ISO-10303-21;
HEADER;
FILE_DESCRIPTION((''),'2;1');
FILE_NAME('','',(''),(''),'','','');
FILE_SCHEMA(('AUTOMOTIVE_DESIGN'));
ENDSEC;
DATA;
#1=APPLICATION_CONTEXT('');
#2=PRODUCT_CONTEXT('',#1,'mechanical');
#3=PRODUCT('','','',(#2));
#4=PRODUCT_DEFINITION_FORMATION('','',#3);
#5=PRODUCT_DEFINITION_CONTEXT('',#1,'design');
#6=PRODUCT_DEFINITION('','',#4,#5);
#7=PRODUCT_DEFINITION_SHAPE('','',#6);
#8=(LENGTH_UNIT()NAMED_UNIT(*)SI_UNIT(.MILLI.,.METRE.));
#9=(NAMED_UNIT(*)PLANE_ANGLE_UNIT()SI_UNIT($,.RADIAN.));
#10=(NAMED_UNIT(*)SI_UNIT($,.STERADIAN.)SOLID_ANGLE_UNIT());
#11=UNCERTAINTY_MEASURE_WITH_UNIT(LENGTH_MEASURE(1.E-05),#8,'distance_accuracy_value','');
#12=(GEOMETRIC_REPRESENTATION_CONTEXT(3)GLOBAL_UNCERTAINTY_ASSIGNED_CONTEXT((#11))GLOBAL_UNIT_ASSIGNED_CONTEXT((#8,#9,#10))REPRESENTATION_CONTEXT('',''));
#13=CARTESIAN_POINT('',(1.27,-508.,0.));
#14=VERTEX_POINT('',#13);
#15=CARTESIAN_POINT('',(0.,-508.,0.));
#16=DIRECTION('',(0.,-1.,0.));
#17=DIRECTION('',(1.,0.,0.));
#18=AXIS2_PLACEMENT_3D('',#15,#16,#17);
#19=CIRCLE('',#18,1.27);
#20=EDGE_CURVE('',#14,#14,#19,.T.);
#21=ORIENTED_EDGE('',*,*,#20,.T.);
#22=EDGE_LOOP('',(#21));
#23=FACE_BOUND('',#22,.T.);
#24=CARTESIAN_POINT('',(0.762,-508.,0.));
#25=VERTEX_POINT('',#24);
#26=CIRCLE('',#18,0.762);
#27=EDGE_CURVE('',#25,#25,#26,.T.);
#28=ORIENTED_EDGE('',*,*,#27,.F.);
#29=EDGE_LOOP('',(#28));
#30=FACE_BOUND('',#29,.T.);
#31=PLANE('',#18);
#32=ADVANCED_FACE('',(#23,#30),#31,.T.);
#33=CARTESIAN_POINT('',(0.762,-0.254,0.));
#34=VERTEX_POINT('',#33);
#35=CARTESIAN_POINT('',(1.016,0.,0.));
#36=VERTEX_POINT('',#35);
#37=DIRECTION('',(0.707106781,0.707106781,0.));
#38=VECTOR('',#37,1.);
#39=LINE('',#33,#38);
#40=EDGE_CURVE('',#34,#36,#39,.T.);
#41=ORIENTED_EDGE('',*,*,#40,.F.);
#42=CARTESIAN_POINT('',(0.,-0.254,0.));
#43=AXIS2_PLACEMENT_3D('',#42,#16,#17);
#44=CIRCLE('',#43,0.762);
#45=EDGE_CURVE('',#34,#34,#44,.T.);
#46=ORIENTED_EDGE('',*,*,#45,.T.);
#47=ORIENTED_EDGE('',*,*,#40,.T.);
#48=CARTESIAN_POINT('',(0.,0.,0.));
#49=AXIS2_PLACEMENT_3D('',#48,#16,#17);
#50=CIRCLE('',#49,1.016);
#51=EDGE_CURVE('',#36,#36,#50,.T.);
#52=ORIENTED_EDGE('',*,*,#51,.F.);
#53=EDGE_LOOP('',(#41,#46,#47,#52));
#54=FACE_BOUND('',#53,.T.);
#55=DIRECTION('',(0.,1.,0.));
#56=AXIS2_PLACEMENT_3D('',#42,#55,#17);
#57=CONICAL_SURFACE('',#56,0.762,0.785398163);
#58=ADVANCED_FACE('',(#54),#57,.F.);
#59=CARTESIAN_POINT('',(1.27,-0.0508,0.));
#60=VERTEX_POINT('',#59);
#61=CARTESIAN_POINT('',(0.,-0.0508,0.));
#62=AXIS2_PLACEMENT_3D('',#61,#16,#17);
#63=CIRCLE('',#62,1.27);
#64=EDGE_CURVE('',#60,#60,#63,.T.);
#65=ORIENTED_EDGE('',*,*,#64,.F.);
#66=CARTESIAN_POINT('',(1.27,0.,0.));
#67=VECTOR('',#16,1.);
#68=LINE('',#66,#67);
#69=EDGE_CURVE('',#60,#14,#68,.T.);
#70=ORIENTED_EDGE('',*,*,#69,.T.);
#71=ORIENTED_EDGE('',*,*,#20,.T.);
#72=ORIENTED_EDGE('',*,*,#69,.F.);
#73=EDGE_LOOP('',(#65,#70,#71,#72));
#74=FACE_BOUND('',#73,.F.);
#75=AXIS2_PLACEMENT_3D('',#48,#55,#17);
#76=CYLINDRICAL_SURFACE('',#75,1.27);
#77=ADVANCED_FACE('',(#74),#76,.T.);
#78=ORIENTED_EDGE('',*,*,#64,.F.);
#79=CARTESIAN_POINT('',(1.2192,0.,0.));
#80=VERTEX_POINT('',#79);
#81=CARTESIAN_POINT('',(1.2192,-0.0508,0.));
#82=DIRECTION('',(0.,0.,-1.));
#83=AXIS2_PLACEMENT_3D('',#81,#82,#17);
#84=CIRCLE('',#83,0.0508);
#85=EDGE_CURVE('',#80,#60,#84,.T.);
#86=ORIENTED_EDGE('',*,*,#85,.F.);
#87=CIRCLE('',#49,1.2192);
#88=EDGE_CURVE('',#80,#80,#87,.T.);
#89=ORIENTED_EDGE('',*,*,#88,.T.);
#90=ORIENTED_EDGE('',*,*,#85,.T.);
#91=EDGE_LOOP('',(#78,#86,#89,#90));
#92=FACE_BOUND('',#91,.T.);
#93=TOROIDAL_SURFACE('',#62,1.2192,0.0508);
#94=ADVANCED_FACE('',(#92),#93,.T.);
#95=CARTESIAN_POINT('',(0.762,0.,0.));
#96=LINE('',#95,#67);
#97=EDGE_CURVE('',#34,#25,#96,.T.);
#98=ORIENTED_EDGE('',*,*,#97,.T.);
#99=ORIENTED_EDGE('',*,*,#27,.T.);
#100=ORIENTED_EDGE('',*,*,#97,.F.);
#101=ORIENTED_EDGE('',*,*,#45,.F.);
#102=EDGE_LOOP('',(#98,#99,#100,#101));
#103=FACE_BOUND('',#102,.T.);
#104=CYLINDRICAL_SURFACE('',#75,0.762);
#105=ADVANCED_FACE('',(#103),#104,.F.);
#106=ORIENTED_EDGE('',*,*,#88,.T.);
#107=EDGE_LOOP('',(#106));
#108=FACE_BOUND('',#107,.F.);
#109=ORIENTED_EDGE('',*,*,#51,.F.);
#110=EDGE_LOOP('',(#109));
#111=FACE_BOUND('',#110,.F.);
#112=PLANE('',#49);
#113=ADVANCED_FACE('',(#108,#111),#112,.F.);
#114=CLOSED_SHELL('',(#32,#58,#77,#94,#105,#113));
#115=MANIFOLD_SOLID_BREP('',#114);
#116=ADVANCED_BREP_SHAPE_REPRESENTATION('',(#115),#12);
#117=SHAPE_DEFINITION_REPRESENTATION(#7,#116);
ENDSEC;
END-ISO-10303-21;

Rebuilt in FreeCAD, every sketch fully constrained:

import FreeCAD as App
import Part
import Sketcher
Q = App.Units.Quantity


def edges_at(feature, points):
    """Names of the edges that pass closest to the given points."""
    edges = feature.Shape.Edges
    near = lambda p: min(range(len(edges)), key=lambda i: edges[i].distToShape(Part.Vertex(*p))[0])
    return sorted({f"Edge{near(p) + 1}" for p in points})

doc = App.newDocument("Part")
body = doc.addObject("PartDesign::Body", "Body")

# Sketch on XZ plane
sketch1 = body.newObject("Sketcher::SketchObject", "Sketch")
sketch1.AttachmentSupport = (doc.getObject("XZ_Plane"), [""])
sketch1.MapMode = "FlatFace"
sketch1.addGeometry([
    Part.Circle(App.Vector(0, 0, 0), App.Vector(0, 0, 1), 1.27),
    Part.Circle(App.Vector(0, 0, 0), App.Vector(0, 0, 1), 0.762),
], False)
sketch1.addConstraint([
    Sketcher.Constraint("Coincident", 0, 3, -1, 1),
    Sketcher.Constraint("Coincident", 1, 3, -1, 1),
    Sketcher.Constraint("Diameter", 0, Q("0.1 in")),
    Sketcher.Constraint("Diameter", 1, Q("0.06 in")),
])
pad1 = body.newObject("PartDesign::Pad", "Pad")
pad1.Profile = sketch1
pad1.Length = Q("20 in")
doc.recompute()

chamfer = body.newObject("PartDesign::Chamfer", "Chamfer")
chamfer.Base = (pad1, edges_at(pad1, [(-0.762, 0, 0)]))
chamfer.Size = Q("0.01 in")
doc.recompute()

fillet = body.newObject("PartDesign::Fillet", "Fillet")
fillet.Base = (chamfer, edges_at(chamfer, [(-1.27, 0, 0)]))
fillet.Radius = Q("0.002 in")

doc.recompute()
